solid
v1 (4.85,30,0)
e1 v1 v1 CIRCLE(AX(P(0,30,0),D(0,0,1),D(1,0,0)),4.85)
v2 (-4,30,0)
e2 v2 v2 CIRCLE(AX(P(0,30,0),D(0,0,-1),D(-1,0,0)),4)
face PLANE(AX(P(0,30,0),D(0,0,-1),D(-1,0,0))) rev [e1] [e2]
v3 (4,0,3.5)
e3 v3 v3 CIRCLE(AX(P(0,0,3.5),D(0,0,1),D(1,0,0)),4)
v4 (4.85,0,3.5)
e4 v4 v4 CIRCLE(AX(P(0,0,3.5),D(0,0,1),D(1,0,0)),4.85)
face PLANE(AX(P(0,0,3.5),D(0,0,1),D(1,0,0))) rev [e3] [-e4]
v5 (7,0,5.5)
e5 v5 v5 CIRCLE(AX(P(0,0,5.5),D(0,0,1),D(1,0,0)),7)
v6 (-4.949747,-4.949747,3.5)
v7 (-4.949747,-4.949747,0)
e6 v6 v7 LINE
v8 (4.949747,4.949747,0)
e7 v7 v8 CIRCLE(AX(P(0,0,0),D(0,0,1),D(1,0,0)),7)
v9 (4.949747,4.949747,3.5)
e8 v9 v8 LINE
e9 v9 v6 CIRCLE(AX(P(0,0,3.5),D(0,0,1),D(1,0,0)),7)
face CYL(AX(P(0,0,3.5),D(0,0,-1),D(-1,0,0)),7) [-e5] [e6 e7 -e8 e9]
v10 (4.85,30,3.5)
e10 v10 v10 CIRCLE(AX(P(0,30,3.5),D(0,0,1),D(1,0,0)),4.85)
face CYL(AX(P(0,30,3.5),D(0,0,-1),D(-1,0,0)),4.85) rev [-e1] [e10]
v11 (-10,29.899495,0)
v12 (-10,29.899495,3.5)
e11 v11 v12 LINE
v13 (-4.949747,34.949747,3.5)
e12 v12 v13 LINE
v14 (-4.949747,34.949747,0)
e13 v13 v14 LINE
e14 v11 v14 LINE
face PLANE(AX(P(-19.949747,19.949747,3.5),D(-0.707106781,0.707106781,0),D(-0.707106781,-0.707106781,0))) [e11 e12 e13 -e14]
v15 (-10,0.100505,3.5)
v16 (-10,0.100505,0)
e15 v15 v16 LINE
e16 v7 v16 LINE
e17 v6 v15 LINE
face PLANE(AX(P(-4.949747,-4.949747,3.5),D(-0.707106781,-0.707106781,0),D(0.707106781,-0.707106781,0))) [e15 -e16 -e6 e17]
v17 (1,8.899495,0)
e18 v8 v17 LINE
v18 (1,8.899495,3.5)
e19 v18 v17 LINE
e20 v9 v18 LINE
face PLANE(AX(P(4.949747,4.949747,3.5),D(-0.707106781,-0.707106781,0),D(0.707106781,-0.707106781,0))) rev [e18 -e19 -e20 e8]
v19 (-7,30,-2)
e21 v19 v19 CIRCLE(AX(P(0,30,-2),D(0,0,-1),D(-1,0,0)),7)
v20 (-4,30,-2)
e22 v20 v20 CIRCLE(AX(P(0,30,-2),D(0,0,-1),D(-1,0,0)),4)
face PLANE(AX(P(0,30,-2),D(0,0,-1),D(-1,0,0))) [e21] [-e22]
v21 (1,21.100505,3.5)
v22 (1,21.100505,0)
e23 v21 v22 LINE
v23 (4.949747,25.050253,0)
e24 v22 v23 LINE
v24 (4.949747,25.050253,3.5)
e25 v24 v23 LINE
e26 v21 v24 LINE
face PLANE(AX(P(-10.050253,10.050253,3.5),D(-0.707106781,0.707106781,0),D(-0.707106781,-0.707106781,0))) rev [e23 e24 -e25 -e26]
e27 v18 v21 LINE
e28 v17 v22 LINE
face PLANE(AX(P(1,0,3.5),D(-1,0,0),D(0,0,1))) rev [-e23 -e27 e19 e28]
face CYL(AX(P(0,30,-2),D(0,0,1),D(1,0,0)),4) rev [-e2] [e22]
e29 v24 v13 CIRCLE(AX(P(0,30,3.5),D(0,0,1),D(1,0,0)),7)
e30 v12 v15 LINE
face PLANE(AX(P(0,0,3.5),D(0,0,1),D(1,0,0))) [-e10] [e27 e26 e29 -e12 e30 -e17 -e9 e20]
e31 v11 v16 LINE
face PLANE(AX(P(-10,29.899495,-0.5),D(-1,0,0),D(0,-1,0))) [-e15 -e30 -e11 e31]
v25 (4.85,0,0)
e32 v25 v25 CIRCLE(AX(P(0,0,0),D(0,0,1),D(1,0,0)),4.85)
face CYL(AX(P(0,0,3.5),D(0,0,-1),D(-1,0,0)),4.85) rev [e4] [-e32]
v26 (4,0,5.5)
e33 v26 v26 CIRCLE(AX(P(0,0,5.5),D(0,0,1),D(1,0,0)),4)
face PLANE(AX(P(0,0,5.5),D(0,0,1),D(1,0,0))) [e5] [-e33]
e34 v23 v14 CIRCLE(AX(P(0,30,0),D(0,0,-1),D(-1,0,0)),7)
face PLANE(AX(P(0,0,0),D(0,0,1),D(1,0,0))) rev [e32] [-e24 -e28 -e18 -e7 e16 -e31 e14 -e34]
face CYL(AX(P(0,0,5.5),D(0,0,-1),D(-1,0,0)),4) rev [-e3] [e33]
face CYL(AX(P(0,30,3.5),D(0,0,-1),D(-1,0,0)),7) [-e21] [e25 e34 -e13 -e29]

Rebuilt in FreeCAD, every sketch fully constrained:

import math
import FreeCAD as App
import Part
import Sketcher

V = App.Vector
Q = App.Units.Quantity


def add_polygon(sketch, points):
    """Adds a closed chain of lines whose ends are joined by coincident constraints."""
    first, n = sketch.GeometryCount, len(points)
    for a, b in zip(points, points[1:] + points[:1]):
        sketch.addGeometry(Part.LineSegment(App.Vector(*a, 0), App.Vector(*b, 0)), False)
    for i in range(n):
        sketch.addConstraint(Sketcher.Constraint("Coincident", first + i, 2, first + (i + 1) % n, 1))

doc = App.newDocument("Part")
body = doc.addObject("PartDesign::Body", "Body")

sketch1 = doc.addObject("Sketcher::SketchObject", "Sketch")
body.addObject(sketch1)
sketch1.AttachmentSupport = (doc.XY_Plane, [""])
sketch1.MapMode = "FlatFace"
sketch1.addGeometry([
    Part.LineSegment(V(4.9, 4.9, 0), V(1, 8.9, 0)),
    Part.LineSegment(V(1, 8.9, 0), V(1, 21.1, 0)),
    Part.LineSegment(V(1, 21.1, 0), V(4.9, 25.1, 0)),
    Part.ArcOfCircle(Part.Circle(V(0, 30, 0), V(0, 0, 1), 7), math.radians(-45), math.radians(135)),
    Part.LineSegment(V(-4.9, 34.9, 0), V(-13, 26.9, 0)),
    Part.LineSegment(V(-13, 26.9, 0), V(-13, 3.1, 0)),
    Part.LineSegment(V(-13, 3.1, 0), V(-4.9, -4.9, 0)),
    Part.ArcOfCircle(Part.Circle(V(0, 0, 0), V(0, 0, 1), 7), math.radians(-135), math.radians(45)),
    Part.Circle(V(0, 0, 0), V(0, 0, 1), 4.8),
    Part.Circle(V(0, 30, 0), V(0, 0, 1), 4.8),
], False)
sketch1.addConstraint([
    Sketcher.Constraint("Coincident", 0, 2, 1, 1),
    Sketcher.Constraint("Coincident", 1, 2, 2, 1),
    Sketcher.Constraint("Tangent", 2, 2, 3, 1),
    Sketcher.Constraint("Tangent", 3, 2, 4, 1),
    Sketcher.Constraint("Coincident", 4, 2, 5, 1),
    Sketcher.Constraint("Coincident", 5, 2, 6, 1),
    Sketcher.Constraint("Tangent", 6, 2, 7, 1),
    Sketcher.Constraint("Tangent", 7, 2, 0, 1),
    Sketcher.Constraint("Vertical", 1),
    Sketcher.Constraint("Vertical", 5),
    Sketcher.Constraint("Coincident", 7, 3, -1, 1),
    Sketcher.Constraint("Coincident", 8, 3, -1, 1),
    Sketcher.Constraint("Coincident", 9, 3, 3, 3),
    Sketcher.Constraint("Equal", 3, 7),
    Sketcher.Constraint("Equal", 8, 9),
    Sketcher.Constraint("PointOnObject", 3, 3, -2),
    Sketcher.Constraint("Perpendicular", 0, 2),
    Sketcher.Constraint("Parallel", 2, 4),
    Sketcher.Constraint("Perpendicular", 4, 6),
    Sketcher.Constraint("Vertical", 3, 2, 6, 2),
    Sketcher.Constraint("Radius", 3, Q("7 mm")),
    Sketcher.Constraint("Diameter", 8, Q("9.7 mm")),
    Sketcher.Constraint("DistanceY", -1, 1, 3, 3, Q("30 mm")),
    Sketcher.Constraint("DistanceX", -1, 1, 0, 2, Q("1 mm")),
    Sketcher.Constraint("DistanceX", 4, 2, -1, 1, Q("13 mm")),
])
pad1 = doc.addObject("PartDesign::Pad", "Pad")
body.addObject(pad1)
pad1.Profile = sketch1
pad1.Length = 3.5

sketch2 = doc.addObject("Sketcher::SketchObject", "Sketch001")
body.addObject(sketch2)
sketch2.AttachmentSupport = (doc.XY_Plane, [""])
sketch2.MapMode = "FlatFace"
sketch2.AttachmentOffset = App.Placement(V(0, 0, 3.5), App.Rotation())
add_polygon(sketch2, [(-18, 30), (-18, -3), (-10, -3), (-10, 30)])
sketch2.addConstraint([
    Sketcher.Constraint("Vertical", 0),
    Sketcher.Constraint("Horizontal", 1),
    Sketcher.Constraint("Vertical", 2),
    Sketcher.Constraint("Horizontal", 3),
    Sketcher.Constraint("DistanceX", 1, 2, -1, 1, Q("10 mm")),
    Sketcher.Constraint("DistanceX", 1, 1, 1, 2, Q("8.235884 mm")),
    Sketcher.Constraint("DistanceY", 0, 2, 0, 1, Q("32.578937 mm")),
    Sketcher.Constraint("DistanceY", 0, 2, -1, 1, Q("2.679442 mm")),
])
pocket1 = doc.addObject("PartDesign::Pocket", "Pocket")
body.addObject(pocket1)
pocket1.Profile = sketch2
pocket1.Length = 4

sketch3 = doc.addObject("Sketcher::SketchObject", "Sketch002")
body.addObject(sketch3)
sketch3.AttachmentSupport = (doc.XY_Plane, [""])
sketch3.MapMode = "FlatFace"
sketch3.AttachmentOffset = App.Placement(V(0, 0, 3.5), App.Rotation())
sketch3.addGeometry([
    Part.Circle(V(0, 0, 0), V(0, 0, 1), 7),
    Part.Circle(V(0, 0, 0), V(0, 0, 1), 4),
], False)
sketch3.addConstraint([
    Sketcher.Constraint("Coincident", 0, 3, -1, 1),
    Sketcher.Constraint("Coincident", 1, 3, -1, 1),
    Sketcher.Constraint("Diameter", 0, Q("14 mm")),
    Sketcher.Constraint("Diameter", 1, Q("8 mm")),
])
pad2 = doc.addObject("PartDesign::Pad", "Pad001")
body.addObject(pad2)
pad2.Profile = sketch3
pad2.Length = 2

sketch4 = doc.addObject("Sketcher::SketchObject", "Sketch003")
body.addObject(sketch4)
sketch4.AttachmentSupport = (doc.XY_Plane, [""])
sketch4.MapMode = "FlatFace"
sketch4.AttachmentOffset = App.Placement(V(0, 0, -2), App.Rotation())
sketch4.addGeometry([
    Part.Circle(V(0, 30, 0), V(0, 0, 1), 7),
    Part.Circle(V(0, 30, 0), V(0, 0, 1), 4),
], False)
sketch4.addConstraint([
    Sketcher.Constraint("Coincident", 1, 3, 0, 3),
    Sketcher.Constraint("PointOnObject", 0, 3, -2),
    Sketcher.Constraint("Diameter", 0, Q("14 mm")),
    Sketcher.Constraint("Diameter", 1, Q("8 mm")),
    Sketcher.Constraint("DistanceY", -1, 1, 0, 3, Q("30 mm")),
])
pad3 = doc.addObject("PartDesign::Pad", "Pad002")
body.addObject(pad3)
pad3.Profile = sketch4
pad3.Length = 2

doc.recompute()
